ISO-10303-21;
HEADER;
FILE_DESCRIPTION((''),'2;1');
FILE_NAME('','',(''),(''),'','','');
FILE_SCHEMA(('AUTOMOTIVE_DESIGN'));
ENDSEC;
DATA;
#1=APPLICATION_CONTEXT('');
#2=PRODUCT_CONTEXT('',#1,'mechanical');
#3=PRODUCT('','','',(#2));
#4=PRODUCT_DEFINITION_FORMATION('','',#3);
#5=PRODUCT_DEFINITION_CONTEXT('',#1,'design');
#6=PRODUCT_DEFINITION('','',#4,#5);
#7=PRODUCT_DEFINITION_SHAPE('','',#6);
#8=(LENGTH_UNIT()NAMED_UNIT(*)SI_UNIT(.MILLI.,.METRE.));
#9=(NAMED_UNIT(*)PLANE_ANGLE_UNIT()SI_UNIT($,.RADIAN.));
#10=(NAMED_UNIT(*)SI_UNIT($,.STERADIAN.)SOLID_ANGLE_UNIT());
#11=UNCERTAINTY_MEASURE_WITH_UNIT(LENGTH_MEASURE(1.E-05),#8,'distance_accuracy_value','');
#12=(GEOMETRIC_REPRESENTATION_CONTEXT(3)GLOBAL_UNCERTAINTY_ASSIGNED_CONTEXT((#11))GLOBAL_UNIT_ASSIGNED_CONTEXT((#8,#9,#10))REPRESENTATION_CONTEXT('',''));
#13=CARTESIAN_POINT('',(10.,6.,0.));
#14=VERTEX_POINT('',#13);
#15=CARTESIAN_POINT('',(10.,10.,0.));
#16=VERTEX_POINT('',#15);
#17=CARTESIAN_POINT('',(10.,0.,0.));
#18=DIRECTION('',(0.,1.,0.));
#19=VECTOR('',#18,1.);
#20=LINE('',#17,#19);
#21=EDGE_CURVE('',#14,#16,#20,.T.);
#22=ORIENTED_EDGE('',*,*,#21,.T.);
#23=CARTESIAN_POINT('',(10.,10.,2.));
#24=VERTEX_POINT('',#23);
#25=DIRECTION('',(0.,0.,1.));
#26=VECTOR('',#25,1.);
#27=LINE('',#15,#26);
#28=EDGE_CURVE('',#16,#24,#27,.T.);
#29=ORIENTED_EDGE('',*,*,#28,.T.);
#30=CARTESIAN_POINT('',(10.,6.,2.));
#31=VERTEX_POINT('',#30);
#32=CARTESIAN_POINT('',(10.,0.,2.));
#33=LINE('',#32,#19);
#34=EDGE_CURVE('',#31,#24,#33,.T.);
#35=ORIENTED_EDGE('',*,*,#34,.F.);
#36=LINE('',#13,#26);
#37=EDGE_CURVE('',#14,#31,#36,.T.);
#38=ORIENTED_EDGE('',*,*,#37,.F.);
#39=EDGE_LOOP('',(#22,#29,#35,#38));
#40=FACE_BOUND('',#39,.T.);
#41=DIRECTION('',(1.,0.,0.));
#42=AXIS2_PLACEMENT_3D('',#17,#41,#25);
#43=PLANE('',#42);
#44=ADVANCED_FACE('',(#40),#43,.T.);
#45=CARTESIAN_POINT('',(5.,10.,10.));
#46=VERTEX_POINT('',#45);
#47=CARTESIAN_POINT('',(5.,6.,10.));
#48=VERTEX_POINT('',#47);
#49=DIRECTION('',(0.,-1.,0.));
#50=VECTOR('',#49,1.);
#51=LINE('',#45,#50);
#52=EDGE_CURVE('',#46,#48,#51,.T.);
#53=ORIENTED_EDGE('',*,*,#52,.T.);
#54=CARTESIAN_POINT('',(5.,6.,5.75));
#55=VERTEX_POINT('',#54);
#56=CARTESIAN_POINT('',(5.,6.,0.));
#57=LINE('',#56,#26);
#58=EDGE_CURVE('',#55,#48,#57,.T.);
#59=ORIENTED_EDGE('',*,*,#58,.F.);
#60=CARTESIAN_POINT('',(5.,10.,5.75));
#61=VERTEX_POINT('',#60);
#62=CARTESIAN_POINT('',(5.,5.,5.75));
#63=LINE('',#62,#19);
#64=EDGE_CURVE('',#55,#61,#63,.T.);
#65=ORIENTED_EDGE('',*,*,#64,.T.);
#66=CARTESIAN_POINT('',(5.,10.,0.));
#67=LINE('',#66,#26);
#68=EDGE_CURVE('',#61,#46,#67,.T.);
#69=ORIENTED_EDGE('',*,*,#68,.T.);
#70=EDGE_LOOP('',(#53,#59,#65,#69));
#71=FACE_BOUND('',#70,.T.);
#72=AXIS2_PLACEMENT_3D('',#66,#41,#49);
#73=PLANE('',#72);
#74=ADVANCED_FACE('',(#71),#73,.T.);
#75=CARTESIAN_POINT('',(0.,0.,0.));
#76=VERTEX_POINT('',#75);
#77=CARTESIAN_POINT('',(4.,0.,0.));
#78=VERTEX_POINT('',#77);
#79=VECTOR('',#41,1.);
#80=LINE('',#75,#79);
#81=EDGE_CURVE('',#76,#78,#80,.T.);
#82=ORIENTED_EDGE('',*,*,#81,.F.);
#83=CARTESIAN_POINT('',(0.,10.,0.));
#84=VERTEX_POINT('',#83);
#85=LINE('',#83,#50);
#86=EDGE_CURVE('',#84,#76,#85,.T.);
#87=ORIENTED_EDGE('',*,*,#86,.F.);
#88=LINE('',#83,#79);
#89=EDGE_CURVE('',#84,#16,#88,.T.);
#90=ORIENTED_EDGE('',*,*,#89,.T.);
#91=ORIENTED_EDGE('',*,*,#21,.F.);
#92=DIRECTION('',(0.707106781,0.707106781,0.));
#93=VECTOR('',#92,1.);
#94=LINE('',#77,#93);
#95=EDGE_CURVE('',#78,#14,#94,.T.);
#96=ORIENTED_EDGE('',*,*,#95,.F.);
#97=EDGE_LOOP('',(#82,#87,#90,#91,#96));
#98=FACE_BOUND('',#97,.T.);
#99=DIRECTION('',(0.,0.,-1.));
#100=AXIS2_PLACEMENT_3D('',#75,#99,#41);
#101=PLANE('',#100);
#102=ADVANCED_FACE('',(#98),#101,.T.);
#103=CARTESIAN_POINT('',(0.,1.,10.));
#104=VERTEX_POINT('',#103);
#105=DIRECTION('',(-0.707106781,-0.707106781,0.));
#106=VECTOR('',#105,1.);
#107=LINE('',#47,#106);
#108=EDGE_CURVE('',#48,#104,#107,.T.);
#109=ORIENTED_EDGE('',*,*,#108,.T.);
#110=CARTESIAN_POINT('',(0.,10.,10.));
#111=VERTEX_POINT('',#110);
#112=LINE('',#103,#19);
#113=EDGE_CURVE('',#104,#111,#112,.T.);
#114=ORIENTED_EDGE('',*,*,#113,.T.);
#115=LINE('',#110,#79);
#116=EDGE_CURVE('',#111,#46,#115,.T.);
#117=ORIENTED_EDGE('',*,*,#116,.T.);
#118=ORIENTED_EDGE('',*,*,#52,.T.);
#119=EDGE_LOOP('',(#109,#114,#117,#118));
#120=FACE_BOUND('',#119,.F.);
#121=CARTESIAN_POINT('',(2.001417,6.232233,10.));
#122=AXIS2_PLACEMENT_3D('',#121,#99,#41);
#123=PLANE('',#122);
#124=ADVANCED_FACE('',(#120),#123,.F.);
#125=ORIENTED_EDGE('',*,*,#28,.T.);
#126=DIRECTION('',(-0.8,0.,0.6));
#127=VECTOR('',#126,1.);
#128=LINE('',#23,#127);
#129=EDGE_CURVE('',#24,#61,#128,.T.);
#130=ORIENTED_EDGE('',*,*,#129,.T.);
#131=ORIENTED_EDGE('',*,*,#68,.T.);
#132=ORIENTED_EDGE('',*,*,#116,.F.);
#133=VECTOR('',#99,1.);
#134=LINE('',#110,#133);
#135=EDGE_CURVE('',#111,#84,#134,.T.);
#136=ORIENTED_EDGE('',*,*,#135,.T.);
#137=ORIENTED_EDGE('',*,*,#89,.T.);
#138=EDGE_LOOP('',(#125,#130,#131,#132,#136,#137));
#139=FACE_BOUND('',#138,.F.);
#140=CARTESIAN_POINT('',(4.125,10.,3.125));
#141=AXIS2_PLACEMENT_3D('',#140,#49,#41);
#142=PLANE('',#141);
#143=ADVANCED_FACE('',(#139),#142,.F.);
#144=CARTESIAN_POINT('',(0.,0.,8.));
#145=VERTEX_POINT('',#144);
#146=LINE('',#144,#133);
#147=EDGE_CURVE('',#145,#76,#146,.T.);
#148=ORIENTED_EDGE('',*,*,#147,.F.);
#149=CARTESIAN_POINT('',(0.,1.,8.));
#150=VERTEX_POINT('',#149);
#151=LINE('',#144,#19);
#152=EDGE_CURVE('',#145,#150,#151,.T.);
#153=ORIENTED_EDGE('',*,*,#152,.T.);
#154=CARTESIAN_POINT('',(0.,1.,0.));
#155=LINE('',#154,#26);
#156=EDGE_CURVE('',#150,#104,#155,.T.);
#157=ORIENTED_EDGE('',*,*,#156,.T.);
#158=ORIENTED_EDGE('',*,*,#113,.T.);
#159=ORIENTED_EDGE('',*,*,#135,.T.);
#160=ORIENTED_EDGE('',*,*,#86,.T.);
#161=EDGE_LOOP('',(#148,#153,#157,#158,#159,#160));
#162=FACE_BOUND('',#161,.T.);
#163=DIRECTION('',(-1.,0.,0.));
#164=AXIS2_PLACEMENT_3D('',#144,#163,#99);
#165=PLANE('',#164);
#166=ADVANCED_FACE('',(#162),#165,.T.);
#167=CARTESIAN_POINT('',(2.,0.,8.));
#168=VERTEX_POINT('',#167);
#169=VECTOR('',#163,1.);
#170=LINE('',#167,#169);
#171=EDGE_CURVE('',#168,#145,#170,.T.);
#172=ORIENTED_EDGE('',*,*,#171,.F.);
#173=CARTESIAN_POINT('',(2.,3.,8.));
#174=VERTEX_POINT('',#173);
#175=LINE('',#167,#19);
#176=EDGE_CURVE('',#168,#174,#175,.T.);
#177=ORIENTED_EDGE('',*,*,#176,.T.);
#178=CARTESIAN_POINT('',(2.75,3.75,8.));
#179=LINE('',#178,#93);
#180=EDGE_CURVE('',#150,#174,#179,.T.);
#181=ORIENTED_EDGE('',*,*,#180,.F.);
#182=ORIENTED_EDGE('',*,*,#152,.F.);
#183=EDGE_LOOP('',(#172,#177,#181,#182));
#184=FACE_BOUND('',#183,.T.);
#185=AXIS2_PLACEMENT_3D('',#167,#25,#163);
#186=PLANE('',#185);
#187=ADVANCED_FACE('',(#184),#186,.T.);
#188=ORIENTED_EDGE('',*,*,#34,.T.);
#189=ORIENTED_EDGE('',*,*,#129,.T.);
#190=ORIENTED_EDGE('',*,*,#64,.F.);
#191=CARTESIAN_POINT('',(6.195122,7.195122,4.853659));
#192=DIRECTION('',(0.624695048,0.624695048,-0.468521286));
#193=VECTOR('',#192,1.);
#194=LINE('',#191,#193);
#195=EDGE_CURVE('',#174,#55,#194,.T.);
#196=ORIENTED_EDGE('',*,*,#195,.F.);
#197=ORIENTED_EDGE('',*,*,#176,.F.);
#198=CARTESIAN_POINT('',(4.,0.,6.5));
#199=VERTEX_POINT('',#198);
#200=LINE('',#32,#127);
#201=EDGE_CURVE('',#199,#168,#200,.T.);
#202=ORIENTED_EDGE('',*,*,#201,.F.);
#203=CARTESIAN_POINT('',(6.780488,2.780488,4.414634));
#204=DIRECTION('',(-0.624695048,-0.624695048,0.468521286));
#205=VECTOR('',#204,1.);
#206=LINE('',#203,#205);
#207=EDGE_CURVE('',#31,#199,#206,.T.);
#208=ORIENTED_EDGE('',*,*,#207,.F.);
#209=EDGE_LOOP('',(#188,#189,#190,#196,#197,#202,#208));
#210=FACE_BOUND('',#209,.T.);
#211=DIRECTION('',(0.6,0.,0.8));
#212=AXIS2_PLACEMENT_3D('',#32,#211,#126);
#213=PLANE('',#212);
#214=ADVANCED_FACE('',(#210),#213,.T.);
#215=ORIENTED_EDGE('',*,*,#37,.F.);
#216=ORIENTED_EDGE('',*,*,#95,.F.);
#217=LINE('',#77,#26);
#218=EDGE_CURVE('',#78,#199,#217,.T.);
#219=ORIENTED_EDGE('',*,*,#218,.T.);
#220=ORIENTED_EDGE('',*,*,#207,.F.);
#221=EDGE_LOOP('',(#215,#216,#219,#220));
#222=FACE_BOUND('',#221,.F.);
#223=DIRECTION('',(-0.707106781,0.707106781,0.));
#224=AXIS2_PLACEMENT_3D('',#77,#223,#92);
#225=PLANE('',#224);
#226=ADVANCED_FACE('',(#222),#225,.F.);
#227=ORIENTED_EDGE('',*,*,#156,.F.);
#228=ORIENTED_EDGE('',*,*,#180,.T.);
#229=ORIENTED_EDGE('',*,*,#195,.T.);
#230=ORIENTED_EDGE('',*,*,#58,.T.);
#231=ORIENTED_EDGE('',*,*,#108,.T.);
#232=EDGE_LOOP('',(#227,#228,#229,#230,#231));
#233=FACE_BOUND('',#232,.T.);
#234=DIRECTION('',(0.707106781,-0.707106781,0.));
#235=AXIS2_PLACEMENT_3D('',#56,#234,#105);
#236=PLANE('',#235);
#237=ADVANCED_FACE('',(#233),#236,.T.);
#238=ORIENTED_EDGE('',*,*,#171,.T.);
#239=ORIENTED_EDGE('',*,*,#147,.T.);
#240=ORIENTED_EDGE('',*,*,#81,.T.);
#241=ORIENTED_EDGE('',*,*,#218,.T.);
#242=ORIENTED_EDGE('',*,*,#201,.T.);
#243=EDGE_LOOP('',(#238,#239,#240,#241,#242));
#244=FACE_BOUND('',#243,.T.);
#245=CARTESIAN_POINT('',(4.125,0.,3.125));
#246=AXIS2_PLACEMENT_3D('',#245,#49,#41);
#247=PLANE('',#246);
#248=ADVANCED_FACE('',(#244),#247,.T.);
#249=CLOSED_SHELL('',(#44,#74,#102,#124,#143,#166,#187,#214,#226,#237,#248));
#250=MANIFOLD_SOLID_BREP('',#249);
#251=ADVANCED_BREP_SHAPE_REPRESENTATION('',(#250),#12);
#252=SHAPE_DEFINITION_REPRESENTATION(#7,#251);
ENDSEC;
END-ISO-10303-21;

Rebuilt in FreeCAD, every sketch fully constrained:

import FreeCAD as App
import Part
import Sketcher

V = App.Vector

doc = App.newDocument("Part")
params = doc.addObject("Spreadsheet::Sheet", "Params")
for row, (alias, value) in enumerate([
    ("sketch1_width", "2 mm"),
    ("sketch1_width2", "10 mm"),
    ("sketch1_height", "8 mm"),
    ("pad1_length", "10 mm"),
    ("sketch2_width", "6 mm"),
    ("sketch3_width", "5 mm"),
    ("sketch3_height", "9 mm"),
    ("sketch3_height2", "4 mm"),
    ("pad2_length", "10 mm"),
], start=1):
    params.set(f"A{row}", alias)
    params.set(f"B{row}", "=" + value)
    params.setAlias(f"B{row}", alias)

body = doc.addObject("PartDesign::Body", "Body")

# Sketch on XZ plane
sketch1 = doc.addObject("Sketcher::SketchObject", "Sketch")
body.addObject(sketch1)
sketch1.AttachmentSupport = (doc.XZ_Plane, [""])
sketch1.MapMode = "FlatFace"
sketch1.addGeometry([
    Part.LineSegment(V(2, 8, 0), V(0, 8, 0)),  # 0
    Part.LineSegment(V(0, 8, 0), V(0, 0, 0)),  # 1
    Part.LineSegment(V(0, 0, 0), V(10, 0, 0)),  # 2
    Part.LineSegment(V(10, 0, 0), V(10, 2, 0)),  # 3
    Part.LineSegment(V(10, 2, 0), V(2, 8, 0)),  # 4
], False)
sketch1.addConstraint([
    Sketcher.Constraint("Coincident", 0, 2, 1, 1),
    Sketcher.Constraint("Coincident", 1, 2, 2, 1),
    Sketcher.Constraint("Coincident", 2, 2, 3, 1),
    Sketcher.Constraint("Coincident", 3, 2, 4, 1),
    Sketcher.Constraint("Coincident", 4, 2, 0, 1),
    Sketcher.Constraint("Horizontal", 0),
    Sketcher.Constraint("Vertical", 1),
    Sketcher.Constraint("Horizontal", 2),
    Sketcher.Constraint("Vertical", 3),
    Sketcher.Constraint("Coincident", 1, 2, -1, 1),
    Sketcher.Constraint("Equal", 0, 3),
    Sketcher.Constraint("DistanceX", 0, 2, 0, 1, 2.0),
    Sketcher.Constraint("DistanceX", 2, 1, 2, 2, 10.0),
    Sketcher.Constraint("DistanceY", 1, 2, 1, 1, 8.0),
])
sketch1.setExpression("Constraints[11]", "Params.sketch1_width")
sketch1.setExpression("Constraints[12]", "Params.sketch1_width2")
sketch1.setExpression("Constraints[13]", "Params.sketch1_height")
pad1 = doc.addObject("PartDesign::Pad", "Pad")
body.addObject(pad1)
pad1.Profile = sketch1
pad1.setExpression("Length", "Params.pad1_length")
pad1.Reversed = True

# Sketch on XY plane
sketch2 = doc.addObject("Sketcher::SketchObject", "Sketch001")
body.addObject(sketch2)
sketch2.AttachmentSupport = (doc.XY_Plane, [""])
sketch2.MapMode = "FlatFace"
sketch2.addGeometry([
    Part.LineSegment(V(10, 0, 0), V(4, 0, 0)),
    Part.LineSegment(V(4, 0, 0), V(10, 6, 0)),
    Part.LineSegment(V(10, 6, 0), V(10, 0, 0)),
], False)
sketch2.addConstraint([
    Sketcher.Constraint("Coincident", 0, 2, 1, 1),
    Sketcher.Constraint("Coincident", 1, 2, 2, 1),
    Sketcher.Constraint("Coincident", 2, 2, 0, 1),
    Sketcher.Constraint("Horizontal", 0),
    Sketcher.Constraint("Vertical", 2),
    Sketcher.Constraint("PointOnObject", 0, 2, -1),
    Sketcher.Constraint("Equal", 0, 2),
    Sketcher.Constraint("DistanceX", 0, 2, 0, 1, 6.0),
    Sketcher.Constraint("DistanceX", -1, 1, 0, 2, 4.0),
])
sketch2.setExpression("Constraints[7]", "Params.sketch2_width")
pocket1 = doc.addObject("PartDesign::Pocket", "Pocket")
body.addObject(pocket1)
pocket1.Profile = sketch2
pocket1.Type = "ThroughAll"
pocket1.Reversed = True

# Sketch on XY plane
sketch3 = doc.addObject("Sketcher::SketchObject", "Sketch002")
body.addObject(sketch3)
sketch3.AttachmentSupport = (doc.XY_Plane, [""])
sketch3.MapMode = "FlatFace"
sketch3.addGeometry([
    Part.LineSegment(V(5, 6, 0), V(0, 1, 0)),
    Part.LineSegment(V(0, 1, 0), V(0, 10, 0)),
    Part.LineSegment(V(0, 10, 0), V(5, 10, 0)),
    Part.LineSegment(V(5, 10, 0), V(5, 6, 0)),
], False)
sketch3.addConstraint([
    Sketcher.Constraint("Coincident", 0, 2, 1, 1),
    Sketcher.Constraint("Coincident", 1, 2, 2, 1),
    Sketcher.Constraint("Coincident", 2, 2, 3, 1),
    Sketcher.Constraint("Coincident", 3, 2, 0, 1),
    Sketcher.Constraint("Vertical", 1),
    Sketcher.Constraint("Horizontal", 2),
    Sketcher.Constraint("Vertical", 3),
    Sketcher.Constraint("PointOnObject", 0, 2, -2),
    Sketcher.Constraint("DistanceX", 2, 1, 2, 2, 5.0),
    Sketcher.Constraint("DistanceY", 1, 1, 1, 2, 9.0),
    Sketcher.Constraint("DistanceY", 3, 2, 3, 1, 4.0),
    Sketcher.Constraint("DistanceY", -1, 1, 0, 2, 1.0),
])
sketch3.setExpression("Constraints[8]", "Params.sketch3_width")
sketch3.setExpression("Constraints[9]", "Params.sketch3_height")
sketch3.setExpression("Constraints[10]", "Params.sketch3_height2")
pad2 = doc.addObject("PartDesign::Pad", "Pad001")
body.addObject(pad2)
pad2.Profile = sketch3
pad2.setExpression("Length", "Params.pad2_length")

doc.recompute()
